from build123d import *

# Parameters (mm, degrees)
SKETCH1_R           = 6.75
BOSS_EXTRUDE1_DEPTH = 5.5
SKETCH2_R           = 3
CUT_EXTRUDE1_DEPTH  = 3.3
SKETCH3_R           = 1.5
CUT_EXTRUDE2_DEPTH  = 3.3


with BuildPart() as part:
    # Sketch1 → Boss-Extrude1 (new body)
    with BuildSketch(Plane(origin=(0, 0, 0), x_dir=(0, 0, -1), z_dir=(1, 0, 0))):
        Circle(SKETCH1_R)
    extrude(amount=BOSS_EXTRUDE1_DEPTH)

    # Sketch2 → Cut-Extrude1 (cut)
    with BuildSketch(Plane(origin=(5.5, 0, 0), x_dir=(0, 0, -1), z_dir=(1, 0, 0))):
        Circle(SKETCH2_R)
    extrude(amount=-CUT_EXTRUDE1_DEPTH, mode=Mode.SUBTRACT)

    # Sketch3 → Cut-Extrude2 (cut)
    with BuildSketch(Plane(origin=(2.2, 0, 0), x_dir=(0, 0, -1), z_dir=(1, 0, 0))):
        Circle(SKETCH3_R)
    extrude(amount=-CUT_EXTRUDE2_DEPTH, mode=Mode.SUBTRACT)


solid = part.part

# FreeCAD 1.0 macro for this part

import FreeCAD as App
import Part
import Sketcher

V = App.Vector
Q = App.Units.Quantity

doc = App.newDocument("Part")
params = doc.addObject("Spreadsheet::Sheet", "Params")
for row, (alias, value) in enumerate([
    ("sketch1_diameter", "13.5 mm"),
    ("pad1_length", "5.5 mm"),
    ("sketch2_diameter", "6 mm"),
    ("pocket1_length", "3.3 mm"),
    ("sketch3_diameter", "3 mm"),
    ("pocket2_length", "3.3 mm"),
], start=1):
    params.set(f"A{row}", alias)
    params.set(f"B{row}", "=" + value)
    params.setAlias(f"B{row}", alias)

body = doc.addObject("PartDesign::Body", "Body")

# Sketch on YZ plane
sketch1 = body.newObject("Sketcher::SketchObject", "Sketch")
sketch1.AttachmentSupport = (doc.getObject("YZ_Plane"), [""])
sketch1.MapMode = "FlatFace"
sketch1.addGeometry(Part.Circle(V(0, 0, 0), V(0, 0, 1), 7), False)
sketch1.addConstraint([
    Sketcher.Constraint("Coincident", 0, 3, -1, 1),
    Sketcher.Constraint("Diameter", 0, Q("13.5 mm")),
])
sketch1.setExpression("Constraints[1]", "Params.sketch1_diameter")
pad1 = body.newObject("PartDesign::Pad", "Pad")
pad1.Profile = sketch1
pad1.setExpression("Length", "Params.pad1_length")

# Sketch on YZ plane
sketch2 = body.newObject("Sketcher::SketchObject", "Sketch001")
sketch2.AttachmentSupport = (doc.getObject("YZ_Plane"), [""])
sketch2.MapMode = "FlatFace"
sketch2.AttachmentOffset = App.Placement(V(0, 0, 5.5), App.Rotation())
sketch2.addGeometry(Part.Circle(V(0, 0, 0), V(0, 0, 1), 3), False)
sketch2.addConstraint([
    Sketcher.Constraint("Coincident", 0, 3, -1, 1),
    Sketcher.Constraint("Diameter", 0, Q("6 mm")),
])
sketch2.setExpression("Constraints[1]", "Params.sketch2_diameter")
pocket1 = body.newObject("PartDesign::Pocket", "Pocket")
pocket1.Profile = sketch2
pocket1.setExpression("Length", "Params.pocket1_length")

# Sketch on YZ plane
sketch3 = body.newObject("Sketcher::SketchObject", "Sketch002")
sketch3.AttachmentSupport = (doc.getObject("YZ_Plane"), [""])
sketch3.MapMode = "FlatFace"
sketch3.AttachmentOffset = App.Placement(V(0, 0, 2.2), App.Rotation())
sketch3.addGeometry(Part.Circle(V(0, 0, 0), V(0, 0, 1), 1.5), False)
sketch3.addConstraint([
    Sketcher.Constraint("Coincident", 0, 3, -1, 1),
    Sketcher.Constraint("Diameter", 0, Q("3 mm")),
])
sketch3.setExpression("Constraints[1]", "Params.sketch3_diameter")
pocket2 = body.newObject("PartDesign::Pocket", "Pocket001")
pocket2.Profile = sketch3
pocket2.setExpression("Length", "Params.pocket2_length")

doc.recompute()
